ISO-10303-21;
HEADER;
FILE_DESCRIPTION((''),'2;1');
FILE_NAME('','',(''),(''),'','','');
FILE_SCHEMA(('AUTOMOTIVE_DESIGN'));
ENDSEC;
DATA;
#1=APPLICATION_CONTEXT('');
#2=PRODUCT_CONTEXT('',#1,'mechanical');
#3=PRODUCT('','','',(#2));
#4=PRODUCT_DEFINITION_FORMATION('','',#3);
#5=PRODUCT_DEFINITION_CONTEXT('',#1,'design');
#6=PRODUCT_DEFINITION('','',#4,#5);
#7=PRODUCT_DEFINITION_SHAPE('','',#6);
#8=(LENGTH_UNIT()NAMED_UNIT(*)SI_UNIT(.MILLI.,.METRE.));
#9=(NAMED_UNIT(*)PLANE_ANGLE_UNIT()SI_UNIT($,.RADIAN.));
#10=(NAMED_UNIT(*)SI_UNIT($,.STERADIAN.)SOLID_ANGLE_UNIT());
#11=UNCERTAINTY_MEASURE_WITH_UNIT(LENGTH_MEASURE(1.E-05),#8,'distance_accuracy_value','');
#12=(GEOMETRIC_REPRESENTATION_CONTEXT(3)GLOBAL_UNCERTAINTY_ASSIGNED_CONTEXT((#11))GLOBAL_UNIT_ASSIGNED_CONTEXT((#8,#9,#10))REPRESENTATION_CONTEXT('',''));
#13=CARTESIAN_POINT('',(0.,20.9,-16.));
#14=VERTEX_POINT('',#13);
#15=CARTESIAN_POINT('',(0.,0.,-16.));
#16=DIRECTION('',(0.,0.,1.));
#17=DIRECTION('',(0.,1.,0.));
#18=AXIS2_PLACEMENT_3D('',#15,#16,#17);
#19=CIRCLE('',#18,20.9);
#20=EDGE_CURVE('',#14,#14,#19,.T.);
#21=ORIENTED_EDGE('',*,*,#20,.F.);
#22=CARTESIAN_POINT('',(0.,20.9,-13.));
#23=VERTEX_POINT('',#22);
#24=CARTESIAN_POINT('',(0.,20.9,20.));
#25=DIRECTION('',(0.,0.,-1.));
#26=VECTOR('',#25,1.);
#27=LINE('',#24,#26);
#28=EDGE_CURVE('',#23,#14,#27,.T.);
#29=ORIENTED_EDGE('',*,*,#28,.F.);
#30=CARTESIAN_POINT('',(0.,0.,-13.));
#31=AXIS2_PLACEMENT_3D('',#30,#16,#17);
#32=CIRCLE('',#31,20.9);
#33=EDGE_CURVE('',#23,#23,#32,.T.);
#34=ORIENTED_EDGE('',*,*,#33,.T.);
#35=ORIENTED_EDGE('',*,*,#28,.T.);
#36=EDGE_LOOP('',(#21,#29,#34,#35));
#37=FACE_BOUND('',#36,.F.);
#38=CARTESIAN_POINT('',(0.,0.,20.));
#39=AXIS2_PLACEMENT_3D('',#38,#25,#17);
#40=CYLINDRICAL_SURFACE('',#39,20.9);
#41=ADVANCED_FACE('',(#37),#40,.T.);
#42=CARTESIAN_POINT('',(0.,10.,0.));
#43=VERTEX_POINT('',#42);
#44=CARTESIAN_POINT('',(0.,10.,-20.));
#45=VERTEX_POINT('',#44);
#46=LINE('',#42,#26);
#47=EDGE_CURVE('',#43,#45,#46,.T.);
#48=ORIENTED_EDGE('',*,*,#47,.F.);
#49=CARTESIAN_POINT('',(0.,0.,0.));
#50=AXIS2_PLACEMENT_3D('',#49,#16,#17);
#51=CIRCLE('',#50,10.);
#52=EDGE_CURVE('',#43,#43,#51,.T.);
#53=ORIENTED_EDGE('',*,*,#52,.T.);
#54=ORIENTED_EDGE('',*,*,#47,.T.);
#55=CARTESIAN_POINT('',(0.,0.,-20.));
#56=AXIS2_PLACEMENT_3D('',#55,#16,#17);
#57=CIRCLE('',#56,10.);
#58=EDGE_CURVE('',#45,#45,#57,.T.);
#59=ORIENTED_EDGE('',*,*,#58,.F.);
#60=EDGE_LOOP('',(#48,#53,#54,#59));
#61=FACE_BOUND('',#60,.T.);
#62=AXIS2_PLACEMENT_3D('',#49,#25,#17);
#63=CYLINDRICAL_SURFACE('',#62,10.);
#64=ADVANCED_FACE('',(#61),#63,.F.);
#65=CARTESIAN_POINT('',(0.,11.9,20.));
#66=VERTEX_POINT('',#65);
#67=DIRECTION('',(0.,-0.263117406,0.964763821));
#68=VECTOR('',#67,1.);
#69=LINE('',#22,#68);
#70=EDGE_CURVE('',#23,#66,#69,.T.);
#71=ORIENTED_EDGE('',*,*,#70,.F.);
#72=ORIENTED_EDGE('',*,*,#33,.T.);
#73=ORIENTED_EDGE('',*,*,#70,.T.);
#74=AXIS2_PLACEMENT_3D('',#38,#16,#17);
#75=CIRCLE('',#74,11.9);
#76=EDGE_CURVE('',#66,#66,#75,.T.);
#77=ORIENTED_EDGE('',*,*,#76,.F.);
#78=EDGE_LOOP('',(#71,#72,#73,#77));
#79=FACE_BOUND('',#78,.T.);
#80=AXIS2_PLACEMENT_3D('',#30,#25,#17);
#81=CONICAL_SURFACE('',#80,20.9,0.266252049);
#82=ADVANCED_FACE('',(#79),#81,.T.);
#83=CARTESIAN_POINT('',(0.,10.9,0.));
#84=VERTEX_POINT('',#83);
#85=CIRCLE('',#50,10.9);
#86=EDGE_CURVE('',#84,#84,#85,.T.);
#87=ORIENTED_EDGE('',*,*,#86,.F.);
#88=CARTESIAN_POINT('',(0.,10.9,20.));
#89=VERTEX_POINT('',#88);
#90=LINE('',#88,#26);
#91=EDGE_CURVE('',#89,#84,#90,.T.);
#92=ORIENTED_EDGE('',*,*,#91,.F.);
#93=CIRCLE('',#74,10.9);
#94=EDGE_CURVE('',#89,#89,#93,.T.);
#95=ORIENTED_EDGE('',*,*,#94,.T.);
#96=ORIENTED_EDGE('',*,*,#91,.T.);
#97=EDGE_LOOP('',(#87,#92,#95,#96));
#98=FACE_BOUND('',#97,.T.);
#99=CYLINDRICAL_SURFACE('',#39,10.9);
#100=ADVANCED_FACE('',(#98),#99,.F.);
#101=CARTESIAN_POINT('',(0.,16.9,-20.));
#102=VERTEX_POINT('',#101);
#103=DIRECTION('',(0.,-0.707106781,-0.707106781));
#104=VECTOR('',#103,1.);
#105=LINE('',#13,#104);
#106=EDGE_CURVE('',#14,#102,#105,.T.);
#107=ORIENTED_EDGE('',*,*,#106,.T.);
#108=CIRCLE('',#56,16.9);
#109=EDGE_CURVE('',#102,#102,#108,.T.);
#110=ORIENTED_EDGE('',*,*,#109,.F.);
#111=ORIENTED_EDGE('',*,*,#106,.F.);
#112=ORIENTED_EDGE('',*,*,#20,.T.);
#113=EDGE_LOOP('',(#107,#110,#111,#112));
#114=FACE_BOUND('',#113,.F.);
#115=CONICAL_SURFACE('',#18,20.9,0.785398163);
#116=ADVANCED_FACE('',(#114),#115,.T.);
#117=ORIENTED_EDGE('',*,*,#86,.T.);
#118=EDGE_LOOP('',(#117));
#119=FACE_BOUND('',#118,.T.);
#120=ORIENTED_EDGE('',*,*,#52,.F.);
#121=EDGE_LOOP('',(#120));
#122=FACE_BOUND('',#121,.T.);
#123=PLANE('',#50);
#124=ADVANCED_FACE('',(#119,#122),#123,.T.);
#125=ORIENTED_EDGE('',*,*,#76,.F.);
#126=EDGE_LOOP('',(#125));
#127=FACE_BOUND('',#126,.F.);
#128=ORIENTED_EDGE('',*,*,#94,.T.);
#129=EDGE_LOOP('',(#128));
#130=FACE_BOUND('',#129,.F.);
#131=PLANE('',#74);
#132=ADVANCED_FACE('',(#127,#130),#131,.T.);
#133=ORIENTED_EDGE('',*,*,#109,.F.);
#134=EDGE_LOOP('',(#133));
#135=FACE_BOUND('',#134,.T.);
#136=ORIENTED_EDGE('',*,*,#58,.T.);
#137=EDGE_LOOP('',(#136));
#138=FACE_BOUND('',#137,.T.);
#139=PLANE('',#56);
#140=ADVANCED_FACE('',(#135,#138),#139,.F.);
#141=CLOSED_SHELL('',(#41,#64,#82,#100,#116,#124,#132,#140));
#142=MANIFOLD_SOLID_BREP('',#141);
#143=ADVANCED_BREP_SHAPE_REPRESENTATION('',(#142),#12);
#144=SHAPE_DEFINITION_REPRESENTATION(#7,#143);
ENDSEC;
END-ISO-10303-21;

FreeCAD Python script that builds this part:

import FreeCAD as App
import Part
import Sketcher

V = App.Vector


def edges_at(feature, points):
    """Names of the edges that pass closest to the given points."""
    edges = feature.Shape.Edges
    near = lambda p: min(range(len(edges)), key=lambda i: edges[i].distToShape(Part.Vertex(*p))[0])
    return sorted({f"Edge{near(p) + 1}" for p in points})


def add_polygon(sketch, points):
    """Adds a closed chain of lines whose ends are joined by coincident constraints."""
    first, n = sketch.GeometryCount, len(points)
    for a, b in zip(points, points[1:] + points[:1]):
        sketch.addGeometry(Part.LineSegment(App.Vector(*a, 0), App.Vector(*b, 0)), False)
    for i in range(n):
        sketch.addConstraint(Sketcher.Constraint("Coincident", first + i, 2, first + (i + 1) % n, 1))

doc = App.newDocument("Part")
body = doc.addObject("PartDesign::Body", "Body")

# Sketch on YZ plane
sketch1 = body.newObject("Sketcher::SketchObject", "Sketch")
sketch1.AttachmentSupport = (doc.getObject("YZ_Plane"), [""])
sketch1.MapMode = "FlatFace"
add_polygon(sketch1, [(20.9, 20), (10.9, 20), (10.9, 0), (10, 0), (10, -20), (20.9, -20)])  # lines 0-5
sketch1.addConstraint([
    Sketcher.Constraint("Horizontal", 0),
    Sketcher.Constraint("Vertical", 1),
    Sketcher.Constraint("Horizontal", 2),
    Sketcher.Constraint("Vertical", 3),
    Sketcher.Constraint("Horizontal", 4),
    Sketcher.Constraint("Vertical", 5),
    Sketcher.Constraint("PointOnObject", 1, 2, -1),
    Sketcher.Constraint("Equal", 1, 3),
    Sketcher.Constraint("DistanceX", 0, 2, 0, 1, 10.0),
    Sketcher.Constraint("DistanceY", 1, 2, 1, 1, 20.0),
    Sketcher.Constraint("DistanceX", 4, 1, 4, 2, 10.9),
    Sketcher.Constraint("DistanceX", -1, 1, 2, 2, 10.0),
])
revolution = body.newObject("PartDesign::Revolution", "Revolution")
revolution.Profile = sketch1
revolution.ReferenceAxis = (sketch1, ["V_Axis"])
revolution.Angle = 360
doc.recompute()

chamfer = body.newObject("PartDesign::Chamfer", "Chamfer")
chamfer.Base = (revolution, edges_at(revolution, [(0, -20.9, 20)]))
chamfer.ChamferType = "Two distances"
chamfer.Size = 33
chamfer.Size2 = 9
chamfer.FlipDirection = True
doc.recompute()

chamfer2 = body.newObject("PartDesign::Chamfer", "Chamfer001")
chamfer2.Base = (chamfer, edges_at(chamfer, [(0, -20.9, -20)]))
chamfer2.Size = 4

doc.recompute()
